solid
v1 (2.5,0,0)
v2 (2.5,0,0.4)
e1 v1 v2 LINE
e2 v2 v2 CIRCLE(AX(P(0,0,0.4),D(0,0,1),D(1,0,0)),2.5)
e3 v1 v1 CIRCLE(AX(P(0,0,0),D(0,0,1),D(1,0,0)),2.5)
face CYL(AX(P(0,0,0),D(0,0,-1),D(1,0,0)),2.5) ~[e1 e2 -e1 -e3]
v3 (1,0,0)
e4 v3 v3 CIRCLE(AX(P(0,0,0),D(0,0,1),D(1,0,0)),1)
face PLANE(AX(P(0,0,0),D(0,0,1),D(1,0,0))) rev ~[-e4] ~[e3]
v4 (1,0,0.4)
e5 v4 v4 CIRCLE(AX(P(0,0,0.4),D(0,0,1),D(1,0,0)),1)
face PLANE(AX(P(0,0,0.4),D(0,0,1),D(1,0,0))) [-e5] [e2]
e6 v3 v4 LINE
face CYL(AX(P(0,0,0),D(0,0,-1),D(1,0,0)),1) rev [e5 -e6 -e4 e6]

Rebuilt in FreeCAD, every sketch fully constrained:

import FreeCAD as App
import Part
import Sketcher

V = App.Vector

doc = App.newDocument("Part")
params = doc.addObject("Spreadsheet::Sheet", "Params")
for row, (alias, value) in enumerate([
    ("sketch1_diameter", "5 mm"),
    ("sketch1_diameter2", "2 mm"),
    ("pad1_length", "0.4 mm"),
], start=1):
    params.set(f"A{row}", alias)
    params.set(f"B{row}", "=" + value)
    params.setAlias(f"B{row}", alias)

body = doc.addObject("PartDesign::Body", "Body")

# Sketch on XY plane
sketch1 = body.newObject("Sketcher::SketchObject", "Sketch")
sketch1.AttachmentSupport = (doc.getObject("XY_Plane"), [""])
sketch1.MapMode = "FlatFace"
sketch1.addGeometry([
    Part.Circle(V(0, 0, 0), V(0, 0, 1), 2.5),
    Part.Circle(V(0, 0, 0), V(0, 0, 1), 1),
], False)
sketch1.addConstraint([
    Sketcher.Constraint("Coincident", 0, 3, -1, 1),
    Sketcher.Constraint("Coincident", 1, 3, -1, 1),
    Sketcher.Constraint("Diameter", 0, 5.0),
    Sketcher.Constraint("Diameter", 1, 2.0),
])
sketch1.setExpression("Constraints[2]", "Params.sketch1_diameter")
sketch1.setExpression("Constraints[3]", "Params.sketch1_diameter2")
pad1 = body.newObject("PartDesign::Pad", "Pad")
pad1.Profile = sketch1
pad1.setExpression("Length", "Params.pad1_length")

doc.recompute()
